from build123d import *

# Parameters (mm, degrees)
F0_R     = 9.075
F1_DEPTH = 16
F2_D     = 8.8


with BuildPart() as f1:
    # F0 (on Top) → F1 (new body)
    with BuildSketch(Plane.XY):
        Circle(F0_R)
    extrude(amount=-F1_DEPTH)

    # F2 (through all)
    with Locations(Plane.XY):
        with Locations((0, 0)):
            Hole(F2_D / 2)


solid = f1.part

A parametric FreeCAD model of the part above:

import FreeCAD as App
import Part
import Sketcher

doc = App.newDocument("Part")
body = doc.addObject("PartDesign::Body", "Body")

# Sketch on XY plane
sketch1 = doc.addObject("Sketcher::SketchObject", "Sketch")
body.addObject(sketch1)
sketch1.AttachmentSupport = (doc.XY_Plane, [""])
sketch1.MapMode = "FlatFace"
sketch1.addGeometry(Part.Circle(App.Vector(0, 0, 0), App.Vector(0, 0, 1), 9.075), False)
sketch1.addConstraint([
    Sketcher.Constraint("Coincident", 0, 3, -1, 1),
    Sketcher.Constraint("Diameter", 0, 18.15),
])
pad1 = doc.addObject("PartDesign::Pad", "Pad")
body.addObject(pad1)
pad1.Profile = sketch1
pad1.Length = 16
pad1.Reversed = True

# Sketch on XY plane
sketch2 = doc.addObject("Sketcher::SketchObject", "Sketch001")
body.addObject(sketch2)
sketch2.AttachmentSupport = (doc.XY_Plane, [""])
sketch2.MapMode = "FlatFace"
sketch2.addGeometry(Part.Circle(App.Vector(0, 0, 0), App.Vector(0, 0, 1), 4.4), False)
sketch2.addConstraint([
    Sketcher.Constraint("Coincident", 0, 3, -1, 1),
    Sketcher.Constraint("Diameter", 0, 8.8),
])
doc.recompute()
hole = doc.addObject("PartDesign::Hole", "Hole")
body.addObject(hole)
hole.Profile = sketch2
hole.ThreadType = "None"
hole.Diameter = 8.8
hole.DepthType = "ThroughAll"

doc.recompute()
